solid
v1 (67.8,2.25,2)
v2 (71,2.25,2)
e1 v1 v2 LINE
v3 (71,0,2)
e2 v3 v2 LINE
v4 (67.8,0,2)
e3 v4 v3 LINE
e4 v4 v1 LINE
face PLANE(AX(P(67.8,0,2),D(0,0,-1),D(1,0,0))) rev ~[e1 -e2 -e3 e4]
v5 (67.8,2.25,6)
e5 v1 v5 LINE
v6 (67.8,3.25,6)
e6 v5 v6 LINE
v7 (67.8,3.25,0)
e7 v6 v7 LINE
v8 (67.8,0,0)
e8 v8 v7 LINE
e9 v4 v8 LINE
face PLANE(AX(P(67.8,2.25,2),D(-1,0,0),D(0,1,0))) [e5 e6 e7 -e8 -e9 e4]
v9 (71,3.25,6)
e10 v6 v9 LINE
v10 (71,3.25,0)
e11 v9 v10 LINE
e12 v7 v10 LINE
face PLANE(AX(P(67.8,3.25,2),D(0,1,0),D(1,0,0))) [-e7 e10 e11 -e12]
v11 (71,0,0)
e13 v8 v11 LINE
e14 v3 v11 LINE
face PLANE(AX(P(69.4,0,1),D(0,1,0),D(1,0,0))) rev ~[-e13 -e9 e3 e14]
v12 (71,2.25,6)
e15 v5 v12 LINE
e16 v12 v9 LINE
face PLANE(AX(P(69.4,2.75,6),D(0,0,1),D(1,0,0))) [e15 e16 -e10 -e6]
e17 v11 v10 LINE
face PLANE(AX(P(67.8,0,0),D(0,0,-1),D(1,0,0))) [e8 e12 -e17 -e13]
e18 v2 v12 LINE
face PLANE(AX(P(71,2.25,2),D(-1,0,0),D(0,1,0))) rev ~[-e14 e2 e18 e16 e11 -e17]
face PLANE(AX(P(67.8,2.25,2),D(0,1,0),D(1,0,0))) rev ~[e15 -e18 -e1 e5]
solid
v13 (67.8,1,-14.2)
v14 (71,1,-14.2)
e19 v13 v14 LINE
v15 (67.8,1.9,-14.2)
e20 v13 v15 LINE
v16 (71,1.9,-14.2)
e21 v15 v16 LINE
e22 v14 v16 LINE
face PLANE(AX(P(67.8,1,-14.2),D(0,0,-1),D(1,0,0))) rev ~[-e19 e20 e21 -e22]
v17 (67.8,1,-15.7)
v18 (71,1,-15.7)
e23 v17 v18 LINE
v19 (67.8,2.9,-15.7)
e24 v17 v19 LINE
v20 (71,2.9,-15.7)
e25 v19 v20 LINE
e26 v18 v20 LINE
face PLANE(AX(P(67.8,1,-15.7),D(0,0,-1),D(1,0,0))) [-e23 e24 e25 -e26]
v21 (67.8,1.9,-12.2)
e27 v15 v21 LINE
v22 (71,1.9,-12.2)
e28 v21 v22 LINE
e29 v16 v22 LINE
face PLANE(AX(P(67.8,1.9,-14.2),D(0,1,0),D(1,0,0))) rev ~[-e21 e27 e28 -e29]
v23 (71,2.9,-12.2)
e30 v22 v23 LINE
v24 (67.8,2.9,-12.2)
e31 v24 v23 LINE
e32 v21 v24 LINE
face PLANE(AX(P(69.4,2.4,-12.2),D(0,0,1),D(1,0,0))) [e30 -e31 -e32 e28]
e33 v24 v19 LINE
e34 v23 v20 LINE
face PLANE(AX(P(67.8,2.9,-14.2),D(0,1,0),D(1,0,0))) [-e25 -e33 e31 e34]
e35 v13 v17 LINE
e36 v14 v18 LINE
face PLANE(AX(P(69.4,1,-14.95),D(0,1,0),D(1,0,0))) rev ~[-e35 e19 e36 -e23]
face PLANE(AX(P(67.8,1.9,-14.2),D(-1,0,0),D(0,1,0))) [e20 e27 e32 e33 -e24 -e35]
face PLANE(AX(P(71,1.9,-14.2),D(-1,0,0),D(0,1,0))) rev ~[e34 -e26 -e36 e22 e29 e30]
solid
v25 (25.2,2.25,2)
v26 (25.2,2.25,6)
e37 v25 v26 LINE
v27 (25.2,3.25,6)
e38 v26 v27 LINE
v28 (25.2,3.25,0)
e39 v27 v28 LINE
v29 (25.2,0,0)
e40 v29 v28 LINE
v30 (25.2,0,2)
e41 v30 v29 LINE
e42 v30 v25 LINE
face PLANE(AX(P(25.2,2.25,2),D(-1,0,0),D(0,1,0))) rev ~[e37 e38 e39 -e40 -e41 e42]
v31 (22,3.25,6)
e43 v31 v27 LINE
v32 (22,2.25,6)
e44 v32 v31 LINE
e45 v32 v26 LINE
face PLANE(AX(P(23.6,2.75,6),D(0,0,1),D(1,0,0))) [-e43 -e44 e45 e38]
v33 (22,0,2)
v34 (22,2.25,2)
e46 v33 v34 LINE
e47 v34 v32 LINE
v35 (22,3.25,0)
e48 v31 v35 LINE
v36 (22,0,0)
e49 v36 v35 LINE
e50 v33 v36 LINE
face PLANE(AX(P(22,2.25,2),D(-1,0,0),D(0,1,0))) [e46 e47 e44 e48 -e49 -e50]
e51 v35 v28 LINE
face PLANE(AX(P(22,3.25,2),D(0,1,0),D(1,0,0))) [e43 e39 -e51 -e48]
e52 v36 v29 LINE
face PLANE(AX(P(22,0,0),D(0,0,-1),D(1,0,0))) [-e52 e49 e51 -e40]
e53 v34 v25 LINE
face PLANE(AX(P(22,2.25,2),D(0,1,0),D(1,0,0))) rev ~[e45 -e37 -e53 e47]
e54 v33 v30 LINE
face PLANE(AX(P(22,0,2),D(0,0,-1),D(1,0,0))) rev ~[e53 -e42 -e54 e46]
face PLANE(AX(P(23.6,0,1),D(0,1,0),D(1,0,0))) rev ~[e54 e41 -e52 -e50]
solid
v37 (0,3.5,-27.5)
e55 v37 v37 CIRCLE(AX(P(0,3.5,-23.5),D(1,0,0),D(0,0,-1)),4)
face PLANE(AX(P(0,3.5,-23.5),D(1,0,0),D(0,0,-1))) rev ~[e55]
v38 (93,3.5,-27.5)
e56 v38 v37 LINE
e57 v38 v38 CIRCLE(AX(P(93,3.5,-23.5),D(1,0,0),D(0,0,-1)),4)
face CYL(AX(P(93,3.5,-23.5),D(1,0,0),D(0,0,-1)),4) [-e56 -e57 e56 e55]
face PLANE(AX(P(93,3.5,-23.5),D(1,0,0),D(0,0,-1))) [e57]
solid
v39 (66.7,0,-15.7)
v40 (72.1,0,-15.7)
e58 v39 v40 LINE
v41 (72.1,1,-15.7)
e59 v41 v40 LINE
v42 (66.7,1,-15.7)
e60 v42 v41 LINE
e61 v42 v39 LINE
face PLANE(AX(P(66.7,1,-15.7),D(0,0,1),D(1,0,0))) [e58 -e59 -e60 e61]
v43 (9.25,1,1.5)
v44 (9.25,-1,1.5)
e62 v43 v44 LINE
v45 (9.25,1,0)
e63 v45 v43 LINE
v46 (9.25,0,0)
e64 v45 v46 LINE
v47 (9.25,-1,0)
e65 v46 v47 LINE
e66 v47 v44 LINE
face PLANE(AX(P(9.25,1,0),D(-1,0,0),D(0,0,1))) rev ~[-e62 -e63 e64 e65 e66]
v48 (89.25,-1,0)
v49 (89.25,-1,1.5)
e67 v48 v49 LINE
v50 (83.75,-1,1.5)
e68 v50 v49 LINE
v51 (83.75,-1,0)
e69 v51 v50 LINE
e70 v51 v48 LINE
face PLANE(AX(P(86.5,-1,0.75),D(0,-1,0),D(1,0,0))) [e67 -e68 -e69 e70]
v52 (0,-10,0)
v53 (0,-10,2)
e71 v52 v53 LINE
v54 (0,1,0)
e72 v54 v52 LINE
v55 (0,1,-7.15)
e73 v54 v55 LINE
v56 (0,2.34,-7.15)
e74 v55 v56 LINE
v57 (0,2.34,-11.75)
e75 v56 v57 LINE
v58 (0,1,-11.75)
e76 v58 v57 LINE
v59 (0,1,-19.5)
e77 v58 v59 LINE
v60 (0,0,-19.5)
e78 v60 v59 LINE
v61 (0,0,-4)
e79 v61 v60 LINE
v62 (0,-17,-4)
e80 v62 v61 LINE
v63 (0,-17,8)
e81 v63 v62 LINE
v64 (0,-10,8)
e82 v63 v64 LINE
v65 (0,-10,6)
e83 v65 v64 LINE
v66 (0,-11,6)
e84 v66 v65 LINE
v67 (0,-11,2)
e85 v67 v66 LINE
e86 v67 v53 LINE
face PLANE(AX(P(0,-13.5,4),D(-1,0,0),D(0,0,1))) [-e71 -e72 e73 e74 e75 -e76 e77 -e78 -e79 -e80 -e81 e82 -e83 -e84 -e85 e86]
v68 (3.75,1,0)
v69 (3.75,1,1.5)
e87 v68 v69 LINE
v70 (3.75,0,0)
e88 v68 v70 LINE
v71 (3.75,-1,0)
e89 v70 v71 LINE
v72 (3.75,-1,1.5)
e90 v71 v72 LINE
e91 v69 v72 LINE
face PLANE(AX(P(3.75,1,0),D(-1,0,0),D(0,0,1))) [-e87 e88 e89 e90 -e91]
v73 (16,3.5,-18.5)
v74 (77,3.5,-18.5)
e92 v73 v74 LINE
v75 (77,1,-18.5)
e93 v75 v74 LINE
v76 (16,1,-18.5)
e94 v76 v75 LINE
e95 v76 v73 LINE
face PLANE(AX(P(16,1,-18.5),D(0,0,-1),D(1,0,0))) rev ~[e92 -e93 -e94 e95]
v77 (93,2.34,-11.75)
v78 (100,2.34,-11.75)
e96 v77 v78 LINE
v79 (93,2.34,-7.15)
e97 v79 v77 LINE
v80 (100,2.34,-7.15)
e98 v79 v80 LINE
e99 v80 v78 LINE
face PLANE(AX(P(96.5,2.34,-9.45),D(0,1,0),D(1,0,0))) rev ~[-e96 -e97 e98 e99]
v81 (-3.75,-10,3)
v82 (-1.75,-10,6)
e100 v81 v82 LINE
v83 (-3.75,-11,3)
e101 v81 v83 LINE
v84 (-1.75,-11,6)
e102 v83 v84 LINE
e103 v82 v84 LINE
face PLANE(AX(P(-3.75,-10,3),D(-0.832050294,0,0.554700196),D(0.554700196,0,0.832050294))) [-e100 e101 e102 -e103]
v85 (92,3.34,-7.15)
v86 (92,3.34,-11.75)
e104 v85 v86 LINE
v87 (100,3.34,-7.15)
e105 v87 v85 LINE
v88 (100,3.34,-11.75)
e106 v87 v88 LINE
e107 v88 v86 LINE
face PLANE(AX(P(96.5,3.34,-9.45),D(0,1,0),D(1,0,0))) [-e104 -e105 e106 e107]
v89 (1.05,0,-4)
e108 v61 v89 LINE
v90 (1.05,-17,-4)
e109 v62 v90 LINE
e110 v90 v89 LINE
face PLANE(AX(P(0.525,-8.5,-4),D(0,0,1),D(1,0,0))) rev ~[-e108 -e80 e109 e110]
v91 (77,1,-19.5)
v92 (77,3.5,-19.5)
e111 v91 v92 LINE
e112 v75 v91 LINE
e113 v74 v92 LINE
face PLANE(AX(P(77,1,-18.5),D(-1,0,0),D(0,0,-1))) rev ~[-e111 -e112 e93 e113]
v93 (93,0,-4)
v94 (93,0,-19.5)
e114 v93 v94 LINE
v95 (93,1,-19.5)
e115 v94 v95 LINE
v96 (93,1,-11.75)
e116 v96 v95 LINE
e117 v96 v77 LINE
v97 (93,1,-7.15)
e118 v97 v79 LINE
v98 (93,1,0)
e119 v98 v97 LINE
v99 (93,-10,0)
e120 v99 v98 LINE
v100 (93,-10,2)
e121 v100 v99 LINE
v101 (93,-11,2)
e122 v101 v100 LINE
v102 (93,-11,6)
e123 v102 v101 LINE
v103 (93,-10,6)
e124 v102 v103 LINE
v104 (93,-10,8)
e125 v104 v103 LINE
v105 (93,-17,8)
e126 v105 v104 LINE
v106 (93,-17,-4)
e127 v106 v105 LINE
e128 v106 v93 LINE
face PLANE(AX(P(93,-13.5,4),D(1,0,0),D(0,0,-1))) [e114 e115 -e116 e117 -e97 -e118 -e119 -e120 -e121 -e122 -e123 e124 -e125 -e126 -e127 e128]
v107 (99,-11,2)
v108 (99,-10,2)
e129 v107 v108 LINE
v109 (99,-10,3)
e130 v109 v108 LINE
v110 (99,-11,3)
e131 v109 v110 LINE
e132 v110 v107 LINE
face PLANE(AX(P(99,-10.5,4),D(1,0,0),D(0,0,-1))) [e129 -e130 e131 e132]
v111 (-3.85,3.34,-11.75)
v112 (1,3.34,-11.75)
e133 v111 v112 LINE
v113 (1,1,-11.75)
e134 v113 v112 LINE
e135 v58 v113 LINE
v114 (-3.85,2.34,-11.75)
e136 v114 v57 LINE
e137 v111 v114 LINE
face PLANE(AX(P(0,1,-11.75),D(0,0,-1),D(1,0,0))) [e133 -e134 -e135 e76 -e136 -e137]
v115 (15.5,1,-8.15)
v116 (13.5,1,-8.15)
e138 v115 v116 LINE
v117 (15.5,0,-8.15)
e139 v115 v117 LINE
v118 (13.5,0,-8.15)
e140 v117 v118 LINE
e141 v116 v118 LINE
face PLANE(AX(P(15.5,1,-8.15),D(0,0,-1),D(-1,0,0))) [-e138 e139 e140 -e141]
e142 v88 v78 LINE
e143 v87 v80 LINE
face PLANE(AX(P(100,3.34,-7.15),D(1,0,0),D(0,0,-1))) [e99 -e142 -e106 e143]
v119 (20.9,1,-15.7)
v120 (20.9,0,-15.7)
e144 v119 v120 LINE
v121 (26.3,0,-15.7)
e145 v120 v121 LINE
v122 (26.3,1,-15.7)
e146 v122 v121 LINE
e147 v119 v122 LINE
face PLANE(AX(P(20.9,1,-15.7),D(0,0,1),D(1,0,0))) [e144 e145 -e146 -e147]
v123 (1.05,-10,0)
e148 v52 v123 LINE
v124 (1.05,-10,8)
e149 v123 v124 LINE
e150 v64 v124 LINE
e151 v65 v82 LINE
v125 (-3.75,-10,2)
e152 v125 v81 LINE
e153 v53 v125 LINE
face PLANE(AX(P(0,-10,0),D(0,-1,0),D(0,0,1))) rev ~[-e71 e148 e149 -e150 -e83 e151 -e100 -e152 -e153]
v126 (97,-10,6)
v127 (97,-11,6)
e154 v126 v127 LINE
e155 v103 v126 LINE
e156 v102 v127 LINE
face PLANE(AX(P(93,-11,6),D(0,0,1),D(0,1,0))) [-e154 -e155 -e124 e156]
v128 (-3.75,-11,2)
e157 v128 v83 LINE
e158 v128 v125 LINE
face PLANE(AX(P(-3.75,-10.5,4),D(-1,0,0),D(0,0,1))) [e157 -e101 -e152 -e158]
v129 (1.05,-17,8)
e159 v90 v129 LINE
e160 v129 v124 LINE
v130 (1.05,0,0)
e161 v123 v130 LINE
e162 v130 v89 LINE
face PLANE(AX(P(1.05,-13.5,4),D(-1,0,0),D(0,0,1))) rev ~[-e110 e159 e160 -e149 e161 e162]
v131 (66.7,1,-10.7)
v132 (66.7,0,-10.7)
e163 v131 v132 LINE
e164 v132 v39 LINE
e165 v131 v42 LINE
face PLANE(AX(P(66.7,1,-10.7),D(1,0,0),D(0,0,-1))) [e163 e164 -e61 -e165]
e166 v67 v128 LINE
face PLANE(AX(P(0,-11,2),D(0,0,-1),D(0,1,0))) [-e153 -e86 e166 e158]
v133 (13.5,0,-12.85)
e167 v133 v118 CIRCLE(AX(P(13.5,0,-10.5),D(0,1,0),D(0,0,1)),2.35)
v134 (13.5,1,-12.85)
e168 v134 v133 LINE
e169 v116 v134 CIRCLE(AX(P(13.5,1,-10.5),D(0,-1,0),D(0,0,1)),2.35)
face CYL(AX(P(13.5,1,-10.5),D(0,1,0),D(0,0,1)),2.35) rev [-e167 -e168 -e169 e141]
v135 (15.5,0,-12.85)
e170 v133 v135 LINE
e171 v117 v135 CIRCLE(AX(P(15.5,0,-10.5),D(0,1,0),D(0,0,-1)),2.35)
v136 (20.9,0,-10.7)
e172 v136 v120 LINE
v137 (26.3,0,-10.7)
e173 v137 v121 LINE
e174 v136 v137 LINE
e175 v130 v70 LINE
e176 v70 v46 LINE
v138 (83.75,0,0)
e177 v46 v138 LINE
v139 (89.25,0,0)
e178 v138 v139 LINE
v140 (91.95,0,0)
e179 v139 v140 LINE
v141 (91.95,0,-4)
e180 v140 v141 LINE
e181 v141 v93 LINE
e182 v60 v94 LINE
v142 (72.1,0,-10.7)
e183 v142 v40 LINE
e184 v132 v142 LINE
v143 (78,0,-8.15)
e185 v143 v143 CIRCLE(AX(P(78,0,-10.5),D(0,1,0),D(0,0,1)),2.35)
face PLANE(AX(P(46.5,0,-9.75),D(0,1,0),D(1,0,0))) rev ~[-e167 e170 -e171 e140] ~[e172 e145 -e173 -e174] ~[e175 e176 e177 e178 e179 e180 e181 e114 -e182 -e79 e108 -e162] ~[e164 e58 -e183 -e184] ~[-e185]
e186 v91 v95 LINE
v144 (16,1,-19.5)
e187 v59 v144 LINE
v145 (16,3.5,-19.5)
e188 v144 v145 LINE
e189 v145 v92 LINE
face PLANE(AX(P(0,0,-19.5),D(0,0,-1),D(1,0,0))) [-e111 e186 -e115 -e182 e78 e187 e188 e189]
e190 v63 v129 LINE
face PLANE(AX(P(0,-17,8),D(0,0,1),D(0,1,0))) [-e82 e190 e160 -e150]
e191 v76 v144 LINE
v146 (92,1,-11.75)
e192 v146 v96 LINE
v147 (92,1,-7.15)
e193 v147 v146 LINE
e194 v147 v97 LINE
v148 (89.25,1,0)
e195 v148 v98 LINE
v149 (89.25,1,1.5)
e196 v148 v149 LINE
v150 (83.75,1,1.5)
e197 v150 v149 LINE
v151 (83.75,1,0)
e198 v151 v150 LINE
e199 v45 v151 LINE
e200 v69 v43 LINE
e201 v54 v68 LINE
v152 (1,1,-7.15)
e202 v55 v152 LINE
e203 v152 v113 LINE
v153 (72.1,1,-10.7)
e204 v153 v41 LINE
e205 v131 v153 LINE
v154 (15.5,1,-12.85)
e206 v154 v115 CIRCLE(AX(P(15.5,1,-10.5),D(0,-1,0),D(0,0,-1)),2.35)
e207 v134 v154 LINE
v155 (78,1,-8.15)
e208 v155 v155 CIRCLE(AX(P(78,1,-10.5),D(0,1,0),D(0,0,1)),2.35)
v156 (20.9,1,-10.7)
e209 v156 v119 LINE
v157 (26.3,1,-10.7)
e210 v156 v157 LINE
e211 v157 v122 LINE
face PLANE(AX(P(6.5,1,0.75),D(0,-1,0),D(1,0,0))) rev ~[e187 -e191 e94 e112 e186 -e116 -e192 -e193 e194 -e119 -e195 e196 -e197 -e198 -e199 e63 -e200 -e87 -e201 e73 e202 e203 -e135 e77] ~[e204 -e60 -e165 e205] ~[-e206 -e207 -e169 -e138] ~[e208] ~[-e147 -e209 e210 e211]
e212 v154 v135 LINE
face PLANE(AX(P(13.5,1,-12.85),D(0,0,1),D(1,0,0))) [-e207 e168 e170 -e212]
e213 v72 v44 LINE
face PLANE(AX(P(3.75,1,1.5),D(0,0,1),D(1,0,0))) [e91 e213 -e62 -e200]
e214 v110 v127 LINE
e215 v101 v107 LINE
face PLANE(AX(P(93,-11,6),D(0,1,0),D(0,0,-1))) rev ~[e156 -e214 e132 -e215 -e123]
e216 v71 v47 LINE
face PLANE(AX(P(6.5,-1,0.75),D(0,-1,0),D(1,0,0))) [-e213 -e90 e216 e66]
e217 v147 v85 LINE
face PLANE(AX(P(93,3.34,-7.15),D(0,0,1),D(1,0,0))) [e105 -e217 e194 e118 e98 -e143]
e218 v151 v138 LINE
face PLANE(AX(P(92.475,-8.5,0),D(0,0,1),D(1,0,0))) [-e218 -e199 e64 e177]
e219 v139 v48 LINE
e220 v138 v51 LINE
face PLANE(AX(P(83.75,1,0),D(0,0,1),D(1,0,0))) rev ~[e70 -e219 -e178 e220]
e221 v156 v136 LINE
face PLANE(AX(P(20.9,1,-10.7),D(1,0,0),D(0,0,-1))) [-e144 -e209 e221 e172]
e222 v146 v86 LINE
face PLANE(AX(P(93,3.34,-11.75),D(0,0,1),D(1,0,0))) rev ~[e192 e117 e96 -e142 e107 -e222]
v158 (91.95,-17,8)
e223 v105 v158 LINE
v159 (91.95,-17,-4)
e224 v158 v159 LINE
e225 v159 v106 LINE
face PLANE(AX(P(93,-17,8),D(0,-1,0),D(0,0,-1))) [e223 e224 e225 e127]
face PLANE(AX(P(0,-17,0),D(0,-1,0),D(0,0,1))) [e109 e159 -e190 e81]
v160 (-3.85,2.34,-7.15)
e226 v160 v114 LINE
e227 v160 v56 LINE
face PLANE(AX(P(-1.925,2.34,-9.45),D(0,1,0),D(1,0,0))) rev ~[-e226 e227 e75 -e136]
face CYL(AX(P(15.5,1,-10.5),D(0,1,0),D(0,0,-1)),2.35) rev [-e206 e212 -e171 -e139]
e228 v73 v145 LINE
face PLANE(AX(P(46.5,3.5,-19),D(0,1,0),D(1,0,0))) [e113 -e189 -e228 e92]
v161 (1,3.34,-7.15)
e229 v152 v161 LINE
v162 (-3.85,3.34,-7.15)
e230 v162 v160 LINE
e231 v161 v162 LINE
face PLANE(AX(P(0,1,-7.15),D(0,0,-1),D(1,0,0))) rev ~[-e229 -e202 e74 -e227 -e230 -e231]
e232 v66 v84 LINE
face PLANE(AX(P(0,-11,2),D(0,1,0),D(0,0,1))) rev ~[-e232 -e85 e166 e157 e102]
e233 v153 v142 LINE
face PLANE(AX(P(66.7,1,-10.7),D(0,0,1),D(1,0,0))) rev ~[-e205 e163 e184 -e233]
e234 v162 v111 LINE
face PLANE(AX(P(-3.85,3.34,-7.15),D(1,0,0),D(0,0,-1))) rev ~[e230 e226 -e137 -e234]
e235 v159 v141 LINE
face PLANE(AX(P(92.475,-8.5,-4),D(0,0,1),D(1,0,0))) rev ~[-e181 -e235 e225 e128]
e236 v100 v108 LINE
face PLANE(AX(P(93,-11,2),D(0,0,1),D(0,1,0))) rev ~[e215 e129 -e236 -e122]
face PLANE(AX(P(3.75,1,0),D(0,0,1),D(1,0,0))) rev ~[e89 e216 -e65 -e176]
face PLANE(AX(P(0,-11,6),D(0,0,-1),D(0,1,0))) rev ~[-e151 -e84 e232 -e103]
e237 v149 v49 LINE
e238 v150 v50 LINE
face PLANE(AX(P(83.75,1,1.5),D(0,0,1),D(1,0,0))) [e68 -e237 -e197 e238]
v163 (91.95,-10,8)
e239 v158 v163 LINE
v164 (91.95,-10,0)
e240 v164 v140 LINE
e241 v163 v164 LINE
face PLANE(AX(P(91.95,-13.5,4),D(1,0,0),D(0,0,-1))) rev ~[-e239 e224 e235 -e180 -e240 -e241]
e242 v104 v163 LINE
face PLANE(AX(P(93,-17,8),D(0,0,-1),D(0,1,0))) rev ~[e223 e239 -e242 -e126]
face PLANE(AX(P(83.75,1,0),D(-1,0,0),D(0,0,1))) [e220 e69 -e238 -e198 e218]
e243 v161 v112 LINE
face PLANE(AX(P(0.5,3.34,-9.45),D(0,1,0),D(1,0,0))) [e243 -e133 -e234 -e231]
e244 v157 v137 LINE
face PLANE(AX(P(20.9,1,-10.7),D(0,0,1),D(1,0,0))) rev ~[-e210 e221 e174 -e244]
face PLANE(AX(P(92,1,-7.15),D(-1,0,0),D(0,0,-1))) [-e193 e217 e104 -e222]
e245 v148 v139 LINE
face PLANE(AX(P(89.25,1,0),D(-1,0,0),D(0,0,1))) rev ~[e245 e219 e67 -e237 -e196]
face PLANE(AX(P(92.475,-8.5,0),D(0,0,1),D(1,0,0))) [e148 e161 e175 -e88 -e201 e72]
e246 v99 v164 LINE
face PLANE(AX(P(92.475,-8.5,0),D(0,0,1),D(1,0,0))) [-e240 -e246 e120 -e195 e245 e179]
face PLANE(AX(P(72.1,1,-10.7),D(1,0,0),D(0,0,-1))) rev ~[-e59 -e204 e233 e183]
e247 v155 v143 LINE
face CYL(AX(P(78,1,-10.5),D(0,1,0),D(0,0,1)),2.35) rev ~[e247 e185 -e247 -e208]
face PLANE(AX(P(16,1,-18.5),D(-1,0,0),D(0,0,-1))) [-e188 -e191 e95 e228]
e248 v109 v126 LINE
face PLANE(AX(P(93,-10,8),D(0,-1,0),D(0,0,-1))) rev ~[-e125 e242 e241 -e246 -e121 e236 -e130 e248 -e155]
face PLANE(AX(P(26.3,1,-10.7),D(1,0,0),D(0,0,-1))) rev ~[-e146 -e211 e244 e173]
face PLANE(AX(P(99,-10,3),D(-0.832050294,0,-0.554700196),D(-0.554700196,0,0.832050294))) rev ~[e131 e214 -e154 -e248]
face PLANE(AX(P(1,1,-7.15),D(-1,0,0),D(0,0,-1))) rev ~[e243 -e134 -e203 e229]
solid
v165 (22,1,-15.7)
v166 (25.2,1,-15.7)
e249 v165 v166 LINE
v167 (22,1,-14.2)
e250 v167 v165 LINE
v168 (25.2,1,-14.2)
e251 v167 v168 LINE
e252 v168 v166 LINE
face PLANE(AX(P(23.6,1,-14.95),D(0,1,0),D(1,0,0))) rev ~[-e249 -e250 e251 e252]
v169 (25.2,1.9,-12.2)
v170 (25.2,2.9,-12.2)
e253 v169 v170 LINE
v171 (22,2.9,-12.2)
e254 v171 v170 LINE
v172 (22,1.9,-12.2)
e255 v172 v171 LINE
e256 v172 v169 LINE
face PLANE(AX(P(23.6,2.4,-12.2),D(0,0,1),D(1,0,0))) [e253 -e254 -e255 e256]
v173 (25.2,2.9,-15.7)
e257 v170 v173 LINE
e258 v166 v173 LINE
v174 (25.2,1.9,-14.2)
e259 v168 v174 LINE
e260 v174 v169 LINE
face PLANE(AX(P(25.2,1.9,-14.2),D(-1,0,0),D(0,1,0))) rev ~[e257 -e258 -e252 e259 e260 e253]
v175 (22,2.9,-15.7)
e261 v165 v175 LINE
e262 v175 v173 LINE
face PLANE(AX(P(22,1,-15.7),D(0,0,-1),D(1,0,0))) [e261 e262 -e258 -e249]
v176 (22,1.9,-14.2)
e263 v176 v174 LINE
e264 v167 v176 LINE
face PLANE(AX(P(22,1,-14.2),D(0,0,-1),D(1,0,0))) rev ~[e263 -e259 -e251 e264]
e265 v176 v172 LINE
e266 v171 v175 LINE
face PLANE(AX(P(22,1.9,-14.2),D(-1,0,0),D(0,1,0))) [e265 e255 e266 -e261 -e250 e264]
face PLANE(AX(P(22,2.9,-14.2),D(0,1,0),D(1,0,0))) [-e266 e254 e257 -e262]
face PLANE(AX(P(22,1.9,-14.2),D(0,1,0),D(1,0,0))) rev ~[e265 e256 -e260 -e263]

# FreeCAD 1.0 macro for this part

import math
import FreeCAD as App
import Part
import Sketcher
from FreeCAD import Vector
Q = App.Units.Quantity

doc = App.newDocument("Part")
body = doc.addObject("PartDesign::Body", "Body")

# Sketch on XZ plane
sketch1 = body.newObject("Sketcher::SketchObject", "Sketch")
sketch1.AttachmentSupport = (doc.getObject("XZ_Plane"), [""])
sketch1.MapMode = "FlatFace"
sketch1.addGeometry([
    Part.LineSegment(Vector(0, -20, 0), Vector(0, 0, 0)),
    Part.LineSegment(Vector(0, 0, 0), Vector(93, 0, 0)),
    Part.LineSegment(Vector(93, 0, 0), Vector(93, -20, 0)),
    Part.LineSegment(Vector(93, -20, 0), Vector(0, -20, 0)),
], False)
sketch1.addConstraint([
    Sketcher.Constraint("Coincident", 0, 2, 1, 1),
    Sketcher.Constraint("Coincident", 1, 2, 2, 1),
    Sketcher.Constraint("Coincident", 2, 2, 3, 1),
    Sketcher.Constraint("Coincident", 3, 2, 0, 1),
    Sketcher.Constraint("Vertical", 0),
    Sketcher.Constraint("Horizontal", 1),
    Sketcher.Constraint("Vertical", 2),
    Sketcher.Constraint("Horizontal", 3),
    Sketcher.Constraint("Coincident", 0, 2, -1, 1),
    Sketcher.Constraint("DistanceX", 1, 1, 1, 2, Q("93 mm")),
    Sketcher.Constraint("DistanceY", 0, 1, 0, 2, Q("19.5 mm")),
])
pad1 = body.newObject("PartDesign::Pad", "Pad")
pad1.Profile = sketch1
pad1.Length = 1
pad1.Reversed = True

# Sketch on XZ plane
sketch2 = body.newObject("Sketcher::SketchObject", "Sketch001")
sketch2.AttachmentSupport = (doc.getObject("XZ_Plane"), [""])
sketch2.MapMode = "FlatFace"
sketch2.AttachmentOffset = App.Placement(Vector(0, 0, -1), App.Rotation())
sketch2.addGeometry([
    Part.LineSegment(Vector(16, -19.5, 0), Vector(16, -18.5, 0)),
    Part.LineSegment(Vector(16, -18.5, 0), Vector(77, -18.5, 0)),
    Part.LineSegment(Vector(77, -18.5, 0), Vector(77, -19.5, 0)),
    Part.LineSegment(Vector(77, -19.5, 0), Vector(16, -19.5, 0)),
], False)
sketch2.addConstraint([
    Sketcher.Constraint("Coincident", 0, 2, 1, 1),
    Sketcher.Constraint("Coincident", 1, 2, 2, 1),
    Sketcher.Constraint("Coincident", 2, 2, 3, 1),
    Sketcher.Constraint("Coincident", 3, 2, 0, 1),
    Sketcher.Constraint("Vertical", 0),
    Sketcher.Constraint("Horizontal", 1),
    Sketcher.Constraint("Vertical", 2),
    Sketcher.Constraint("Horizontal", 3),
    Sketcher.Constraint("DistanceX", 1, 1, 1, 2, Q("61 mm")),
    Sketcher.Constraint("DistanceY", 0, 1, 0, 2, Q("1 mm")),
    Sketcher.Constraint("DistanceX", -1, 1, 0, 2, Q("16 mm")),
    Sketcher.Constraint("DistanceY", 0, 2, -1, 1, Q("18.5 mm")),
])
pad2 = body.newObject("PartDesign::Pad", "Pad001")
pad2.Profile = sketch2
pad2.Length = 2.5
pad2.Reversed = True

# Sketch on XZ plane
sketch3 = body.newObject("Sketcher::SketchObject", "Sketch002")
sketch3.AttachmentSupport = (doc.getObject("XZ_Plane"), [""])
sketch3.MapMode = "FlatFace"
sketch3.AttachmentOffset = App.Placement(Vector(0, 0, -1), App.Rotation())
sketch3.addGeometry([
    Part.LineSegment(Vector(21, -16, 0), Vector(21, -11, 0)),  # 0
    Part.LineSegment(Vector(21, -11, 0), Vector(26, -11, 0)),  # 1
    Part.LineSegment(Vector(26, -11, 0), Vector(26, -16, 0)),  # 2
    Part.LineSegment(Vector(26, -16, 0), Vector(21, -16, 0)),  # 3
    Part.LineSegment(Vector(67, -16, 0), Vector(67, -11, 0)),  # 4
    Part.LineSegment(Vector(67, -11, 0), Vector(72, -11, 0)),  # 5
    Part.LineSegment(Vector(72, -11, 0), Vector(72, -16, 0)),  # 6
    Part.LineSegment(Vector(72, -16, 0), Vector(67, -16, 0)),  # 7
], False)
sketch3.addConstraint([
    Sketcher.Constraint("Coincident", 0, 2, 1, 1),
    Sketcher.Constraint("Coincident", 1, 2, 2, 1),
    Sketcher.Constraint("Coincident", 2, 2, 3, 1),
    Sketcher.Constraint("Coincident", 3, 2, 0, 1),
    Sketcher.Constraint("Coincident", 4, 2, 5, 1),
    Sketcher.Constraint("Coincident", 5, 2, 6, 1),
    Sketcher.Constraint("Coincident", 6, 2, 7, 1),
    Sketcher.Constraint("Coincident", 7, 2, 4, 1),
    Sketcher.Constraint("Vertical", 0),
    Sketcher.Constraint("Horizontal", 1),
    Sketcher.Constraint("Vertical", 2),
    Sketcher.Constraint("Horizontal", 3),
    Sketcher.Constraint("Vertical", 4),
    Sketcher.Constraint("Horizontal", 5),
    Sketcher.Constraint("Vertical", 6),
    Sketcher.Constraint("Horizontal", 7),
    Sketcher.Constraint("Horizontal", 1, 2, 4, 2),
    Sketcher.Constraint("Horizontal", 3, 2, 6, 2),
    Sketcher.Constraint("Equal", 3, 5),
    Sketcher.Constraint("DistanceY", 0, 1, 0, 2, Q("5 mm")),
    Sketcher.Constraint("DistanceX", 1, 1, 1, 2, Q("5.4 mm")),
    Sketcher.Constraint("DistanceX", -1, 1, 0, 2, Q("20.9 mm")),
    Sketcher.Constraint("DistanceY", 0, 2, -1, 1, Q("10.7 mm")),
    Sketcher.Constraint("DistanceX", -1, 1, 4, 2, Q("66.7 mm")),
])
pocket1 = body.newObject("PartDesign::Pocket", "Pocket")
pocket1.Profile = sketch3
pocket1.Length = 5
pocket1.Reversed = True

# Sketch on XZ plane
sketch4 = body.newObject("Sketcher::SketchObject", "Sketch003")
sketch4.AttachmentSupport = (doc.getObject("XZ_Plane"), [""])
sketch4.MapMode = "FlatFace"
sketch4.AttachmentOffset = App.Placement(Vector(0, 0, -1), App.Rotation())
sketch4.addGeometry([
    Part.Circle(Vector(78, -10.5, 0), Vector(0, 0, 1), 2.4),  # 0
    Part.LineSegment(Vector(15.5, -12.8, 0), Vector(13.5, -12.8, 0)),  # 1
    Part.ArcOfCircle(Part.Circle(Vector(13.5, -10.5, 0), Vector(0, 0, 1), 2.4), math.radians(90), math.radians(270)),  # 2
    Part.LineSegment(Vector(13.5, -8.2, 0), Vector(15.5, -8.2, 0)),  # 3
    Part.ArcOfCircle(Part.Circle(Vector(15.5, -10.5, 0), Vector(0, 0, 1), 2.4), math.radians(-90), math.radians(90)),  # 4
], False)
sketch4.addConstraint([
    Sketcher.Constraint("Tangent", 1, 2, 2, 2),
    Sketcher.Constraint("Tangent", 2, 1, 3, 1),
    Sketcher.Constraint("Tangent", 3, 2, 4, 2),
    Sketcher.Constraint("Tangent", 4, 1, 1, 1),
    Sketcher.Constraint("Horizontal", 1),
    Sketcher.Constraint("Horizontal", 3),
    Sketcher.Constraint("Equal", 0, 2),
    Sketcher.Constraint("Horizontal", 0, 3, 2, 3),
    Sketcher.Constraint("Diameter", 0, Q("4.7 mm")),
    Sketcher.Constraint("DistanceX", 1, 2, 1, 1, Q("2 mm")),
    Sketcher.Constraint("DistanceX", -1, 1, 0, 3, Q("78 mm")),
    Sketcher.Constraint("DistanceY", 0, 3, -1, 1, Q("10.5 mm")),
    Sketcher.Constraint("DistanceX", -1, 1, 2, 3, Q("13.5 mm")),
])
pocket2 = body.newObject("PartDesign::Pocket", "Pocket001")
pocket2.Profile = sketch4
pocket2.Type = "ThroughAll"
pocket2.Reversed = True

# Sketch on XZ plane
sketch5 = body.newObject("Sketcher::SketchObject", "Sketch004")
sketch5.AttachmentSupport = (doc.getObject("XZ_Plane"), [""])
sketch5.MapMode = "FlatFace"
sketch5.AttachmentOffset = App.Placement(Vector(0, 0, -1), App.Rotation())
sketch5.addGeometry([
    Part.LineSegment(Vector(92, -11.8, 0), Vector(92, -7.2, 0)),  # 0
    Part.LineSegment(Vector(92, -7.2, 0), Vector(93, -7.2, 0)),  # 1
    Part.LineSegment(Vector(93, -7.2, 0), Vector(93, -11.8, 0)),  # 2
    Part.LineSegment(Vector(93, -11.8, 0), Vector(92, -11.8, 0)),  # 3
    Part.LineSegment(Vector(0, -11.8, 0), Vector(0, -7.2, 0)),  # 4
    Part.LineSegment(Vector(0, -7.2, 0), Vector(1, -7.2, 0)),  # 5
    Part.LineSegment(Vector(1, -7.2, 0), Vector(1, -11.8, 0)),  # 6
    Part.LineSegment(Vector(1, -11.8, 0), Vector(0, -11.8, 0)),  # 7
], False)
sketch5.addConstraint([
    Sketcher.Constraint("Coincident", 0, 2, 1, 1),
    Sketcher.Constraint("Coincident", 1, 2, 2, 1),
    Sketcher.Constraint("Coincident", 2, 2, 3, 1),
    Sketcher.Constraint("Coincident", 3, 2, 0, 1),
    Sketcher.Constraint("Coincident", 4, 2, 5, 1),
    Sketcher.Constraint("Coincident", 5, 2, 6, 1),
    Sketcher.Constraint("Coincident", 6, 2, 7, 1),
    Sketcher.Constraint("Coincident", 7, 2, 4, 1),
    Sketcher.Constraint("Vertical", 0),
    Sketcher.Constraint("Horizontal", 1),
    Sketcher.Constraint("Vertical", 2),
    Sketcher.Constraint("Horizontal", 3),
    Sketcher.Constraint("Vertical", 4),
    Sketcher.Constraint("Horizontal", 5),
    Sketcher.Constraint("Vertical", 6),
    Sketcher.Constraint("Horizontal", 7),
    Sketcher.Constraint("PointOnObject", 4, 2, -2),
    Sketcher.Constraint("Horizontal", 1, 2, 4, 2),
    Sketcher.Constraint("Horizontal", 3, 2, 6, 2),
    Sketcher.Constraint("Equal", 3, 5),
    Sketcher.Constraint("DistanceX", 1, 1, 1, 2, Q("1 mm")),
    Sketcher.Constraint("DistanceY", 0, 1, 0, 2, Q("4.6 mm")),
    Sketcher.Constraint("DistanceX", -1, 1, 0, 2, Q("92 mm")),
    Sketcher.Constraint("DistanceY", 0, 2, -1, 1, Q("7.15 mm")),
])
pad3 = body.newObject("PartDesign::Pad", "Pad002")
pad3.Profile = sketch5
pad3.Length = 2.34
pad3.Reversed = True

# Sketch on XZ plane
sketch6 = body.newObject("Sketcher::SketchObject", "Sketch005")
sketch6.AttachmentSupport = (doc.getObject("XZ_Plane"), [""])
sketch6.MapMode = "FlatFace"
sketch6.AttachmentOffset = App.Placement(Vector(0, 0, -3.34), App.Rotation())
sketch6.addGeometry([
    Part.LineSegment(Vector(93, -11.8, 0), Vector(93, -7.2, 0)),  # 0
    Part.LineSegment(Vector(93, -7.2, 0), Vector(100, -7.2, 0)),  # 1
    Part.LineSegment(Vector(100, -7.2, 0), Vector(100, -11.8, 0)),  # 2
    Part.LineSegment(Vector(100, -11.8, 0), Vector(93, -11.8, 0)),  # 3
    Part.LineSegment(Vector(-3.9, -11.8, 0), Vector(-3.9, -7.2, 0)),  # 4
    Part.LineSegment(Vector(-3.9, -7.2, 0), Vector(0, -7.2, 0)),  # 5
    Part.LineSegment(Vector(0, -7.2, 0), Vector(0, -11.8, 0)),  # 6
    Part.LineSegment(Vector(0, -11.8, 0), Vector(-3.9, -11.8, 0)),  # 7
], False)
sketch6.addConstraint([
    Sketcher.Constraint("Coincident", 0, 2, 1, 1),
    Sketcher.Constraint("Coincident", 1, 2, 2, 1),
    Sketcher.Constraint("Coincident", 2, 2, 3, 1),
    Sketcher.Constraint("Coincident", 3, 2, 0, 1),
    Sketcher.Constraint("Coincident", 4, 2, 5, 1),
    Sketcher.Constraint("Coincident", 5, 2, 6, 1),
    Sketcher.Constraint("Coincident", 6, 2, 7, 1),
    Sketcher.Constraint("Coincident", 7, 2, 4, 1),
    Sketcher.Constraint("Vertical", 0),
    Sketcher.Constraint("Horizontal", 1),
    Sketcher.Constraint("Vertical", 2),
    Sketcher.Constraint("Horizontal", 3),
    Sketcher.Constraint("Vertical", 4),
    Sketcher.Constraint("Horizontal", 5),
    Sketcher.Constraint("Vertical", 6),
    Sketcher.Constraint("Horizontal", 7),
    Sketcher.Constraint("PointOnObject", 5, 2, -2),
    Sketcher.Constraint("Horizontal", 1, 2, 4, 2),
    Sketcher.Constraint("Horizontal", 3, 2, 6, 2),
    Sketcher.Constraint("DistanceX", 1, 1, 1, 2, Q("7 mm")),
    Sketcher.Constraint("DistanceY", 0, 1, 0, 2, Q("4.6 mm")),
    Sketcher.Constraint("DistanceX", -1, 1, 0, 2, Q("93 mm")),
    Sketcher.Constraint("DistanceX", 5, 1, 5, 2, Q("3.85 mm")),
    Sketcher.Constraint("DistanceY", 0, 2, -1, 1, Q("7.15 mm")),
])
pad4 = body.newObject("PartDesign::Pad", "Pad003")
pad4.Profile = sketch6
pad4.Length = 1

# Sketch on XY plane
sketch7 = body.newObject("Sketcher::SketchObject", "Sketch006")
sketch7.AttachmentSupport = (doc.getObject("XY_Plane"), [""])
sketch7.MapMode = "FlatFace"
sketch7.addGeometry([
    Part.LineSegment(Vector(92, 0, 0), Vector(92, -17, 0)),  # 0
    Part.LineSegment(Vector(92, -17, 0), Vector(93, -17, 0)),  # 1
    Part.LineSegment(Vector(93, -17, 0), Vector(93, 0, 0)),  # 2
    Part.LineSegment(Vector(93, 0, 0), Vector(92, 0, 0)),  # 3
    Part.LineSegment(Vector(0, 0, 0), Vector(0, -17, 0)),  # 4
    Part.LineSegment(Vector(0, -17, 0), Vector(1.1, -17, 0)),  # 5
    Part.LineSegment(Vector(1.1, -17, 0), Vector(1.1, 0, 0)),  # 6
    Part.LineSegment(Vector(1.1, 0, 0), Vector(0, 0, 0)),  # 7
], False)
sketch7.addConstraint([
    Sketcher.Constraint("Coincident", 0, 2, 1, 1),
    Sketcher.Constraint("Coincident", 1, 2, 2, 1),
    Sketcher.Constraint("Coincident", 2, 2, 3, 1),
    Sketcher.Constraint("Coincident", 3, 2, 0, 1),
    Sketcher.Constraint("Coincident", 4, 2, 5, 1),
    Sketcher.Constraint("Coincident", 5, 2, 6, 1),
    Sketcher.Constraint("Coincident", 6, 2, 7, 1),
    Sketcher.Constraint("Coincident", 7, 2, 4, 1),
    Sketcher.Constraint("Vertical", 0),
    Sketcher.Constraint("Horizontal", 1),
    Sketcher.Constraint("Vertical", 2),
    Sketcher.Constraint("Horizontal", 3),
    Sketcher.Constraint("Vertical", 4),
    Sketcher.Constraint("Horizontal", 5),
    Sketcher.Constraint("Vertical", 6),
    Sketcher.Constraint("Horizontal", 7),
    Sketcher.Constraint("Coincident", 7, 2, -1, 1),
    Sketcher.Constraint("PointOnObject", 2, 2, -1),
    Sketcher.Constraint("Horizontal", 1, 2, 4, 2),
    Sketcher.Constraint("Equal", 3, 5),
    Sketcher.Constraint("DistanceY", 0, 2, 0, 1, Q("17 mm")),
    Sketcher.Constraint("DistanceX", -1, 1, 1, 2, Q("93 mm")),
    Sketcher.Constraint("DistanceX", 1, 1, 1, 2, Q("1.05 mm")),
])
pad5 = body.newObject("PartDesign::Pad", "Pad004")
pad5.Profile = sketch7
pad5.Length = 4
pad5.Reversed = True

# Sketch on XZ plane
sketch8 = body.newObject("Sketcher::SketchObject", "Sketch007")
sketch8.AttachmentSupport = (doc.getObject("XZ_Plane"), [""])
sketch8.MapMode = "FlatFace"
sketch8.addGeometry([
    Part.LineSegment(Vector(3.8, 1.5, 0), Vector(3.8, 0, 0)),  # 0
    Part.LineSegment(Vector(3.8, 0, 0), Vector(9.2, 0, 0)),  # 1
    Part.LineSegment(Vector(9.2, 0, 0), Vector(9.2, 1.5, 0)),  # 2
    Part.LineSegment(Vector(9.2, 1.5, 0), Vector(3.8, 1.5, 0)),  # 3
    Part.LineSegment(Vector(83.8, 1.5, 0), Vector(83.8, 0, 0)),  # 4
    Part.LineSegment(Vector(83.8, 0, 0), Vector(89.2, 0, 0)),  # 5
    Part.LineSegment(Vector(89.2, 0, 0), Vector(89.2, 1.5, 0)),  # 6
    Part.LineSegment(Vector(89.2, 1.5, 0), Vector(83.8, 1.5, 0)),  # 7
], False)
sketch8.addConstraint([
    Sketcher.Constraint("Coincident", 0, 2, 1, 1),
    Sketcher.Constraint("Coincident", 1, 2, 2, 1),
    Sketcher.Constraint("Coincident", 2, 2, 3, 1),
    Sketcher.Constraint("Coincident", 3, 2, 0, 1),
    Sketcher.Constraint("Coincident", 4, 2, 5, 1),
    Sketcher.Constraint("Coincident", 5, 2, 6, 1),
    Sketcher.Constraint("Coincident", 6, 2, 7, 1),
    Sketcher.Constraint("Coincident", 7, 2, 4, 1),
    Sketcher.Constraint("Vertical", 0),
    Sketcher.Constraint("Horizontal", 1),
    Sketcher.Constraint("Vertical", 2),
    Sketcher.Constraint("Horizontal", 3),
    Sketcher.Constraint("Vertical", 4),
    Sketcher.Constraint("Horizontal", 5),
    Sketcher.Constraint("Vertical", 6),
    Sketcher.Constraint("Horizontal", 7),
    Sketcher.Constraint("PointOnObject", 0, 2, -1),
    Sketcher.Constraint("PointOnObject", 4, 2, -1),
    Sketcher.Constraint("Horizontal", 3, 2, 6, 2),
    Sketcher.Constraint("Equal", 3, 5),
    Sketcher.Constraint("DistanceX", 1, 1, 1, 2, Q("5.5 mm")),
    Sketcher.Constraint("DistanceY", 0, 2, 0, 1, Q("1.5 mm")),
    Sketcher.Constraint("DistanceX", 0, 2, 4, 2, Q("80 mm")),
    Sketcher.Constraint("DistanceX", -1, 1, 0, 2, Q("3.75 mm")),
])
pad6 = body.newObject("PartDesign::Pad", "Pad005")
pad6.Profile = sketch8
pad6.Type = "TwoLengths"
pad6.Length = 1
pad6.Length2 = 1

# Sketch on YZ plane
sketch9 = body.newObject("Sketcher::SketchObject", "Sketch008")
sketch9.AttachmentSupport = (doc.getObject("YZ_Plane"), [""])
sketch9.MapMode = "FlatFace"
sketch9.AttachmentOffset = App.Placement(Vector(0, 0, 93), App.Rotation())
sketch9.addGeometry([
    Part.LineSegment(Vector(-10, 8, 0), Vector(-17, 8, 0)),
    Part.LineSegment(Vector(-17, 8, 0), Vector(-17, 0, 0)),
    Part.LineSegment(Vector(-17, 0, 0), Vector(-10, 0, 0)),
    Part.LineSegment(Vector(-10, 0, 0), Vector(-10, 8, 0)),
], False)
sketch9.addConstraint([
    Sketcher.Constraint("Coincident", 0, 2, 1, 1),
    Sketcher.Constraint("Coincident", 1, 2, 2, 1),
    Sketcher.Constraint("Coincident", 2, 2, 3, 1),
    Sketcher.Constraint("Coincident", 3, 2, 0, 1),
    Sketcher.Constraint("Horizontal", 0),
    Sketcher.Constraint("Vertical", 1),
    Sketcher.Constraint("Horizontal", 2),
    Sketcher.Constraint("Vertical", 3),
    Sketcher.Constraint("PointOnObject", 1, 2, -1),
    Sketcher.Constraint("DistanceX", 0, 2, 0, 1, Q("7 mm")),
    Sketcher.Constraint("DistanceY", 1, 2, 1, 1, Q("8 mm")),
    Sketcher.Constraint("DistanceX", 0, 2, -1, 1, Q("17 mm")),
])
pad7 = body.newObject("PartDesign::Pad", "Pad006")
pad7.Profile = sketch9
pad7.Length = 1.05
pad7.Reversed = True

# Sketch on YZ plane
sketch10 = body.newObject("Sketcher::SketchObject", "Sketch009")
sketch10.AttachmentSupport = (doc.getObject("YZ_Plane"), [""])
sketch10.MapMode = "FlatFace"
sketch10.AttachmentOffset = App.Placement(Vector(0, 0, 93), App.Rotation())
sketch10.addGeometry([
    Part.LineSegment(Vector(-10, 6, 0), Vector(-11, 6, 0)),
    Part.LineSegment(Vector(-11, 6, 0), Vector(-11, 2, 0)),
    Part.LineSegment(Vector(-11, 2, 0), Vector(-10, 2, 0)),
    Part.LineSegment(Vector(-10, 2, 0), Vector(-10, 6, 0)),
], False)
sketch10.addConstraint([
    Sketcher.Constraint("Coincident", 0, 2, 1, 1),
    Sketcher.Constraint("Coincident", 1, 2, 2, 1),
    Sketcher.Constraint("Coincident", 2, 2, 3, 1),
    Sketcher.Constraint("Coincident", 3, 2, 0, 1),
    Sketcher.Constraint("Horizontal", 0),
    Sketcher.Constraint("Vertical", 1),
    Sketcher.Constraint("Horizontal", 2),
    Sketcher.Constraint("Vertical", 3),
    Sketcher.Constraint("DistanceX", 0, 2, 0, 1, Q("1 mm")),
    Sketcher.Constraint("DistanceY", 1, 2, 1, 1, Q("4 mm")),
    Sketcher.Constraint("DistanceX", 0, 2, -1, 1, Q("11 mm")),
    Sketcher.Constraint("DistanceY", -1, 1, 0, 2, Q("6 mm")),
])
pad8 = body.newObject("PartDesign::Pad", "Pad007")
pad8.Profile = sketch10
pad8.Length = 6

# Sketch on XZ plane
sketch11 = body.newObject("Sketcher::SketchObject", "Sketch010")
sketch11.AttachmentSupport = (doc.getObject("XZ_Plane"), [""])
sketch11.MapMode = "FlatFace"
sketch11.AttachmentOffset = App.Placement(Vector(0, 0, 10), App.Rotation())
sketch11.addGeometry([
    Part.LineSegment(Vector(99, 3, 0), Vector(97, 6, 0)),
    Part.LineSegment(Vector(97, 6, 0), Vector(99, 6, 0)),
    Part.LineSegment(Vector(99, 6, 0), Vector(99, 3, 0)),
], False)
sketch11.addConstraint([
    Sketcher.Constraint("Coincident", 0, 2, 1, 1),
    Sketcher.Constraint("Coincident", 1, 2, 2, 1),
    Sketcher.Constraint("Coincident", 2, 2, 0, 1),
    Sketcher.Constraint("Horizontal", 1),
    Sketcher.Constraint("Vertical", 2),
    Sketcher.Constraint("DistanceX", 1, 1, 1, 2, Q("2 mm")),
    Sketcher.Constraint("DistanceY", 2, 2, 2, 1, Q("3 mm")),
    Sketcher.Constraint("DistanceX", -1, 1, 0, 2, Q("97 mm")),
    Sketcher.Constraint("DistanceY", -1, 1, 0, 2, Q("6 mm")),
])
pocket3 = body.newObject("PartDesign::Pocket", "Pocket002")
pocket3.Profile = sketch11
pocket3.Length = 6
pocket3.Reversed = True

# Sketch on YZ plane
sketch12 = body.newObject("Sketcher::SketchObject", "Sketch011")
sketch12.AttachmentSupport = (doc.getObject("YZ_Plane"), [""])
sketch12.MapMode = "FlatFace"
sketch12.addGeometry([
    Part.LineSegment(Vector(-10, 0, 0), Vector(-17, 0, 0)),
    Part.LineSegment(Vector(-17, 0, 0), Vector(-17, 8, 0)),
    Part.LineSegment(Vector(-17, 8, 0), Vector(-10, 8, 0)),
    Part.LineSegment(Vector(-10, 8, 0), Vector(-10, 0, 0)),
], False)
sketch12.addConstraint([
    Sketcher.Constraint("Coincident", 0, 2, 1, 1),
    Sketcher.Constraint("Coincident", 1, 2, 2, 1),
    Sketcher.Constraint("Coincident", 2, 2, 3, 1),
    Sketcher.Constraint("Coincident", 3, 2, 0, 1),
    Sketcher.Constraint("Horizontal", 0),
    Sketcher.Constraint("Vertical", 1),
    Sketcher.Constraint("Horizontal", 2),
    Sketcher.Constraint("Vertical", 3),
    Sketcher.Constraint("PointOnObject", 0, 2, -1),
    Sketcher.Constraint("DistanceX", 0, 2, 0, 1, Q("7 mm")),
    Sketcher.Constraint("DistanceY", 1, 1, 1, 2, Q("8 mm")),
    Sketcher.Constraint("DistanceX", 0, 2, -1, 1, Q("17 mm")),
])
pad9 = body.newObject("PartDesign::Pad", "Pad008")
pad9.Profile = sketch12
pad9.Length = 1.05

# Sketch on YZ plane
sketch13 = body.newObject("Sketcher::SketchObject", "Sketch012")
sketch13.AttachmentSupport = (doc.getObject("YZ_Plane"), [""])
sketch13.MapMode = "FlatFace"
sketch13.addGeometry([
    Part.LineSegment(Vector(-10, 2, 0), Vector(-11, 2, 0)),
    Part.LineSegment(Vector(-11, 2, 0), Vector(-11, 6, 0)),
    Part.LineSegment(Vector(-11, 6, 0), Vector(-10, 6, 0)),
    Part.LineSegment(Vector(-10, 6, 0), Vector(-10, 2, 0)),
], False)
sketch13.addConstraint([
    Sketcher.Constraint("Coincident", 0, 2, 1, 1),
    Sketcher.Constraint("Coincident", 1, 2, 2, 1),
    Sketcher.Constraint("Coincident", 2, 2, 3, 1),
    Sketcher.Constraint("Coincident", 3, 2, 0, 1),
    Sketcher.Constraint("Horizontal", 0),
    Sketcher.Constraint("Vertical", 1),
    Sketcher.Constraint("Horizontal", 2),
    Sketcher.Constraint("Vertical", 3),
    Sketcher.Constraint("DistanceX", 0, 2, 0, 1, Q("1 mm")),
    Sketcher.Constraint("DistanceY", 1, 1, 1, 2, Q("4 mm")),
    Sketcher.Constraint("DistanceX", 0, 2, -1, 1, Q("11 mm")),
    Sketcher.Constraint("DistanceY", -1, 1, 0, 2, Q("2 mm")),
])
pad10 = body.newObject("PartDesign::Pad", "Pad009")
pad10.Profile = sketch13
pad10.Length = 3.75
pad10.Reversed = True

# Sketch on XZ plane
sketch14 = body.newObject("Sketcher::SketchObject", "Sketch013")
sketch14.AttachmentSupport = (doc.getObject("XZ_Plane"), [""])
sketch14.MapMode = "FlatFace"
sketch14.AttachmentOffset = App.Placement(Vector(0, 0, 10), App.Rotation())
sketch14.addGeometry([
    Part.LineSegment(Vector(-1.8, 6, 0), Vector(-3.8, 3, 0)),
    Part.LineSegment(Vector(-3.8, 3, 0), Vector(-3.8, 6, 0)),
    Part.LineSegment(Vector(-3.8, 6, 0), Vector(-1.8, 6, 0)),
], False)
sketch14.addConstraint([
    Sketcher.Constraint("Coincident", 0, 2, 1, 1),
    Sketcher.Constraint("Coincident", 1, 2, 2, 1),
    Sketcher.Constraint("Coincident", 2, 2, 0, 1),
    Sketcher.Constraint("Vertical", 1),
    Sketcher.Constraint("Horizontal", 2),
    Sketcher.Constraint("DistanceX", 2, 1, 2, 2, Q("2 mm")),
    Sketcher.Constraint("DistanceY", 1, 1, 1, 2, Q("3 mm")),
    Sketcher.Constraint("DistanceY", -1, 1, 0, 2, Q("3 mm")),
    Sketcher.Constraint("DistanceX", 0, 2, -1, 1, Q("3.75 mm")),
])
pocket4 = body.newObject("PartDesign::Pocket", "Pocket003")
pocket4.Profile = sketch14
pocket4.Length = 3.75
pocket4.Reversed = True
body2 = doc.addObject("PartDesign::Body", "Body001")

# Sketch on XZ plane
sketch15 = body2.newObject("Sketcher::SketchObject", "Sketch014")
sketch15.AttachmentSupport = (doc.getObject("XZ_Plane001"), [""])
sketch15.MapMode = "FlatFace"
sketch15.AttachmentOffset = App.Placement(Vector(0, 0, -1), App.Rotation())
sketch15.addGeometry([
    Part.LineSegment(Vector(67.8, 0, 0), Vector(67.8, 2, 0)),
    Part.LineSegment(Vector(67.8, 2, 0), Vector(71, 2, 0)),
    Part.LineSegment(Vector(71, 2, 0), Vector(71, 0, 0)),
    Part.LineSegment(Vector(71, 0, 0), Vector(67.8, 0, 0)),
], False)
sketch15.addConstraint([
    Sketcher.Constraint("Coincident", 0, 2, 1, 1),
    Sketcher.Constraint("Coincident", 1, 2, 2, 1),
    Sketcher.Constraint("Coincident", 2, 2, 3, 1),
    Sketcher.Constraint("Coincident", 3, 2, 0, 1),
    Sketcher.Constraint("Vertical", 0),
    Sketcher.Constraint("Horizontal", 1),
    Sketcher.Constraint("Vertical", 2),
    Sketcher.Constraint("Horizontal", 3),
    Sketcher.Constraint("PointOnObject", 2, 2, -1),
    Sketcher.Constraint("DistanceY", 0, 1, 0, 2, Q("2 mm")),
    Sketcher.Constraint("DistanceX", 1, 1, 1, 2, Q("3.2 mm")),
    Sketcher.Constraint("DistanceX", -1, 1, 1, 2, Q("71 mm")),
])
pad11 = body2.newObject("PartDesign::Pad", "Pad010")
pad11.Profile = sketch15
pad11.Type = "TwoLengths"
pad11.Length = 2.25
pad11.Length2 = 1
pad11.Reversed = True
body3 = doc.addObject("PartDesign::Body", "Body002")

# Sketch on XZ plane
sketch16 = body3.newObject("Sketcher::SketchObject", "Sketch015")
sketch16.AttachmentSupport = (doc.getObject("XZ_Plane002"), [""])
sketch16.MapMode = "FlatFace"
sketch16.AttachmentOffset = App.Placement(Vector(0, 0, -1), App.Rotation())
sketch16.addGeometry([
    Part.LineSegment(Vector(22, 0, 0), Vector(22, 2, 0)),
    Part.LineSegment(Vector(22, 2, 0), Vector(25.2, 2, 0)),
    Part.LineSegment(Vector(25.2, 2, 0), Vector(25.2, 0, 0)),
    Part.LineSegment(Vector(25.2, 0, 0), Vector(22, 0, 0)),
], False)
sketch16.addConstraint([
    Sketcher.Constraint("Coincident", 0, 2, 1, 1),
    Sketcher.Constraint("Coincident", 1, 2, 2, 1),
    Sketcher.Constraint("Coincident", 2, 2, 3, 1),
    Sketcher.Constraint("Coincident", 3, 2, 0, 1),
    Sketcher.Constraint("Vertical", 0),
    Sketcher.Constraint("Horizontal", 1),
    Sketcher.Constraint("Vertical", 2),
    Sketcher.Constraint("Horizontal", 3),
    Sketcher.Constraint("PointOnObject", 2, 2, -1),
    Sketcher.Constraint("DistanceY", 0, 1, 0, 2, Q("2 mm")),
    Sketcher.Constraint("DistanceX", 1, 1, 1, 2, Q("3.2 mm")),
    Sketcher.Constraint("DistanceX", -1, 1, 0, 2, Q("22 mm")),
])
pad12 = body3.newObject("PartDesign::Pad", "Pad011")
pad12.Profile = sketch16
pad12.Type = "TwoLengths"
pad12.Length = 2.25
pad12.Length2 = 1
pad12.Reversed = True
body2.AllowCompound = True
doc.recompute()

boolean = body2.newObject("PartDesign::Boolean", "Boolean")
boolean.Type = "Fuse"
boolean.addObjects([body3])

# Sketch on XY plane
sketch17 = body2.newObject("Sketcher::SketchObject", "Sketch016")
sketch17.AttachmentSupport = (doc.getObject("XY_Plane001"), [""])
sketch17.MapMode = "FlatFace"
sketch17.AttachmentOffset = App.Placement(Vector(0, 0, 2), App.Rotation())
sketch17.addGeometry([
    Part.LineSegment(Vector(22, 3.2, 0), Vector(22, 2.2, 0)),  # 0
    Part.LineSegment(Vector(22, 2.2, 0), Vector(25.2, 2.2, 0)),  # 1
    Part.LineSegment(Vector(25.2, 2.2, 0), Vector(25.2, 3.2, 0)),  # 2
    Part.LineSegment(Vector(25.2, 3.2, 0), Vector(22, 3.2, 0)),  # 3
    Part.LineSegment(Vector(67.8, 3.2, 0), Vector(67.8, 2.2, 0)),  # 4
    Part.LineSegment(Vector(67.8, 2.2, 0), Vector(71, 2.2, 0)),  # 5
    Part.LineSegment(Vector(71, 2.2, 0), Vector(71, 3.2, 0)),  # 6
    Part.LineSegment(Vector(71, 3.2, 0), Vector(67.8, 3.2, 0)),  # 7
], False)
sketch17.addConstraint([
    Sketcher.Constraint("Coincident", 0, 2, 1, 1),
    Sketcher.Constraint("Coincident", 1, 2, 2, 1),
    Sketcher.Constraint("Coincident", 2, 2, 3, 1),
    Sketcher.Constraint("Coincident", 3, 2, 0, 1),
    Sketcher.Constraint("Coincident", 4, 2, 5, 1),
    Sketcher.Constraint("Coincident", 5, 2, 6, 1),
    Sketcher.Constraint("Coincident", 6, 2, 7, 1),
    Sketcher.Constraint("Coincident", 7, 2, 4, 1),
    Sketcher.Constraint("Vertical", 0),
    Sketcher.Constraint("Horizontal", 1),
    Sketcher.Constraint("Vertical", 2),
    Sketcher.Constraint("Horizontal", 3),
    Sketcher.Constraint("Vertical", 4),
    Sketcher.Constraint("Horizontal", 5),
    Sketcher.Constraint("Vertical", 6),
    Sketcher.Constraint("Horizontal", 7),
    Sketcher.Constraint("Horizontal", 1, 2, 4, 2),
    Sketcher.Constraint("Horizontal", 3, 2, 6, 2),
    Sketcher.Constraint("Equal", 3, 5),
    Sketcher.Constraint("DistanceY", 0, 2, 0, 1, Q("1 mm")),
    Sketcher.Constraint("DistanceX", 1, 1, 1, 2, Q("3.2 mm")),
    Sketcher.Constraint("DistanceX", -1, 1, 0, 2, Q("22 mm")),
    Sketcher.Constraint("DistanceX", -1, 1, 5, 2, Q("71 mm")),
    Sketcher.Constraint("DistanceY", -1, 1, 0, 2, Q("2.25 mm")),
])
pad13 = body2.newObject("PartDesign::Pad", "Pad012")
pad13.Profile = sketch17
pad13.Length = 4
body4 = doc.addObject("PartDesign::Body", "Body003")

# Sketch on XZ plane
sketch18 = body4.newObject("Sketcher::SketchObject", "Sketch017")
sketch18.AttachmentSupport = (doc.getObject("XZ_Plane003"), [""])
sketch18.MapMode = "FlatFace"
sketch18.AttachmentOffset = App.Placement(Vector(0, 0, -1), App.Rotation())
sketch18.addGeometry([
    Part.LineSegment(Vector(22, -15.7, 0), Vector(22, -14.2, 0)),
    Part.LineSegment(Vector(22, -14.2, 0), Vector(25.2, -14.2, 0)),
    Part.LineSegment(Vector(25.2, -14.2, 0), Vector(25.2, -15.7, 0)),
    Part.LineSegment(Vector(25.2, -15.7, 0), Vector(22, -15.7, 0)),
], False)
sketch18.addConstraint([
    Sketcher.Constraint("Coincident", 0, 2, 1, 1),
    Sketcher.Constraint("Coincident", 1, 2, 2, 1),
    Sketcher.Constraint("Coincident", 2, 2, 3, 1),
    Sketcher.Constraint("Coincident", 3, 2, 0, 1),
    Sketcher.Constraint("Vertical", 0),
    Sketcher.Constraint("Horizontal", 1),
    Sketcher.Constraint("Vertical", 2),
    Sketcher.Constraint("Horizontal", 3),
    Sketcher.Constraint("DistanceX", 1, 1, 1, 2, Q("3.2 mm")),
    Sketcher.Constraint("DistanceY", 0, 1, 0, 2, Q("1.5 mm")),
    Sketcher.Constraint("DistanceX", -1, 1, 0, 2, Q("22 mm")),
    Sketcher.Constraint("DistanceY", 0, 2, -1, 1, Q("14.2 mm")),
])
pad14 = body4.newObject("PartDesign::Pad", "Pad013")
pad14.Profile = sketch18
pad14.Length = 1.9
pad14.Reversed = True
body5 = doc.addObject("PartDesign::Body", "Body004")

# Sketch on XZ plane
sketch19 = body5.newObject("Sketcher::SketchObject", "Sketch018")
sketch19.AttachmentSupport = (doc.getObject("XZ_Plane004"), [""])
sketch19.MapMode = "FlatFace"
sketch19.AttachmentOffset = App.Placement(Vector(0, 0, -1), App.Rotation())
sketch19.addGeometry([
    Part.LineSegment(Vector(67.8, -15.7, 0), Vector(67.8, -14.2, 0)),
    Part.LineSegment(Vector(67.8, -14.2, 0), Vector(71, -14.2, 0)),
    Part.LineSegment(Vector(71, -14.2, 0), Vector(71, -15.7, 0)),
    Part.LineSegment(Vector(71, -15.7, 0), Vector(67.8, -15.7, 0)),
], False)
sketch19.addConstraint([
    Sketcher.Constraint("Coincident", 0, 2, 1, 1),
    Sketcher.Constraint("Coincident", 1, 2, 2, 1),
    Sketcher.Constraint("Coincident", 2, 2, 3, 1),
    Sketcher.Constraint("Coincident", 3, 2, 0, 1),
    Sketcher.Constraint("Vertical", 0),
    Sketcher.Constraint("Horizontal", 1),
    Sketcher.Constraint("Vertical", 2),
    Sketcher.Constraint("Horizontal", 3),
    Sketcher.Constraint("DistanceX", 1, 1, 1, 2, Q("3.2 mm")),
    Sketcher.Constraint("DistanceY", 0, 1, 0, 2, Q("1.5 mm")),
    Sketcher.Constraint("DistanceX", -1, 1, 1, 2, Q("71 mm")),
    Sketcher.Constraint("DistanceY", 0, 2, -1, 1, Q("14.2 mm")),
])
pad15 = body5.newObject("PartDesign::Pad", "Pad014")
pad15.Profile = sketch19
pad15.Length = 1.9
pad15.Reversed = True
body4.AllowCompound = True
doc.recompute()

boolean2 = body4.newObject("PartDesign::Boolean", "Boolean001")
boolean2.Type = "Fuse"
boolean2.addObjects([body5])

# Sketch on XY plane
sketch20 = body4.newObject("Sketcher::SketchObject", "Sketch019")
sketch20.AttachmentSupport = (doc.getObject("XY_Plane003"), [""])
sketch20.MapMode = "FlatFace"
sketch20.AttachmentOffset = App.Placement(Vector(0, 0, -14.2), App.Rotation())
sketch20.addGeometry([
    Part.LineSegment(Vector(22, 2.9, 0), Vector(22, 1.9, 0)),  # 0
    Part.LineSegment(Vector(22, 1.9, 0), Vector(25.2, 1.9, 0)),  # 1
    Part.LineSegment(Vector(25.2, 1.9, 0), Vector(25.2, 2.9, 0)),  # 2
    Part.LineSegment(Vector(25.2, 2.9, 0), Vector(22, 2.9, 0)),  # 3
    Part.LineSegment(Vector(67.8, 2.9, 0), Vector(67.8, 1.9, 0)),  # 4
    Part.LineSegment(Vector(67.8, 1.9, 0), Vector(71, 1.9, 0)),  # 5
    Part.LineSegment(Vector(71, 1.9, 0), Vector(71, 2.9, 0)),  # 6
    Part.LineSegment(Vector(71, 2.9, 0), Vector(67.8, 2.9, 0)),  # 7
], False)
sketch20.addConstraint([
    Sketcher.Constraint("Coincident", 0, 2, 1, 1),
    Sketcher.Constraint("Coincident", 1, 2, 2, 1),
    Sketcher.Constraint("Coincident", 2, 2, 3, 1),
    Sketcher.Constraint("Coincident", 3, 2, 0, 1),
    Sketcher.Constraint("Coincident", 4, 2, 5, 1),
    Sketcher.Constraint("Coincident", 5, 2, 6, 1),
    Sketcher.Constraint("Coincident", 6, 2, 7, 1),
    Sketcher.Constraint("Coincident", 7, 2, 4, 1),
    Sketcher.Constraint("Vertical", 0),
    Sketcher.Constraint("Horizontal", 1),
    Sketcher.Constraint("Vertical", 2),
    Sketcher.Constraint("Horizontal", 3),
    Sketcher.Constraint("Vertical", 4),
    Sketcher.Constraint("Horizontal", 5),
    Sketcher.Constraint("Vertical", 6),
    Sketcher.Constraint("Horizontal", 7),
    Sketcher.Constraint("Horizontal", 1, 2, 4, 2),
    Sketcher.Constraint("Horizontal", 3, 2, 6, 2),
    Sketcher.Constraint("Equal", 3, 5),
    Sketcher.Constraint("DistanceY", 0, 2, 0, 1, Q("1 mm")),
    Sketcher.Constraint("DistanceX", 1, 1, 1, 2, Q("3.2 mm")),
    Sketcher.Constraint("DistanceX", -1, 1, 0, 2, Q("22 mm")),
    Sketcher.Constraint("DistanceX", -1, 1, 5, 2, Q("71 mm")),
    Sketcher.Constraint("DistanceY", -1, 1, 0, 2, Q("1.9 mm")),
])
pad16 = body4.newObject("PartDesign::Pad", "Pad015")
pad16.Profile = sketch20
pad16.Length = 2
body6 = doc.addObject("PartDesign::Body", "Body005")

# Sketch on YZ plane
sketch21 = body6.newObject("Sketcher::SketchObject", "Sketch020")
sketch21.AttachmentSupport = (doc.getObject("YZ_Plane005"), [""])
sketch21.MapMode = "FlatFace"
sketch21.AttachmentOffset = App.Placement(Vector(0, 0, 93), App.Rotation())
sketch21.addGeometry(Part.Circle(Vector(3.5, -23.5, 0), Vector(0, 0, 1), 4), False)
sketch21.addConstraint([
    Sketcher.Constraint("Diameter", 0, Q("8 mm")),
    Sketcher.Constraint("DistanceX", -1, 1, 0, 3, Q("3.5 mm")),
    Sketcher.Constraint("DistanceY", 0, 3, -1, 1, Q("23.5 mm")),
])
pad17 = body6.newObject("PartDesign::Pad", "Pad016")
pad17.Profile = sketch21
pad17.Length = 93
pad17.Reversed = True

doc.recompute()
